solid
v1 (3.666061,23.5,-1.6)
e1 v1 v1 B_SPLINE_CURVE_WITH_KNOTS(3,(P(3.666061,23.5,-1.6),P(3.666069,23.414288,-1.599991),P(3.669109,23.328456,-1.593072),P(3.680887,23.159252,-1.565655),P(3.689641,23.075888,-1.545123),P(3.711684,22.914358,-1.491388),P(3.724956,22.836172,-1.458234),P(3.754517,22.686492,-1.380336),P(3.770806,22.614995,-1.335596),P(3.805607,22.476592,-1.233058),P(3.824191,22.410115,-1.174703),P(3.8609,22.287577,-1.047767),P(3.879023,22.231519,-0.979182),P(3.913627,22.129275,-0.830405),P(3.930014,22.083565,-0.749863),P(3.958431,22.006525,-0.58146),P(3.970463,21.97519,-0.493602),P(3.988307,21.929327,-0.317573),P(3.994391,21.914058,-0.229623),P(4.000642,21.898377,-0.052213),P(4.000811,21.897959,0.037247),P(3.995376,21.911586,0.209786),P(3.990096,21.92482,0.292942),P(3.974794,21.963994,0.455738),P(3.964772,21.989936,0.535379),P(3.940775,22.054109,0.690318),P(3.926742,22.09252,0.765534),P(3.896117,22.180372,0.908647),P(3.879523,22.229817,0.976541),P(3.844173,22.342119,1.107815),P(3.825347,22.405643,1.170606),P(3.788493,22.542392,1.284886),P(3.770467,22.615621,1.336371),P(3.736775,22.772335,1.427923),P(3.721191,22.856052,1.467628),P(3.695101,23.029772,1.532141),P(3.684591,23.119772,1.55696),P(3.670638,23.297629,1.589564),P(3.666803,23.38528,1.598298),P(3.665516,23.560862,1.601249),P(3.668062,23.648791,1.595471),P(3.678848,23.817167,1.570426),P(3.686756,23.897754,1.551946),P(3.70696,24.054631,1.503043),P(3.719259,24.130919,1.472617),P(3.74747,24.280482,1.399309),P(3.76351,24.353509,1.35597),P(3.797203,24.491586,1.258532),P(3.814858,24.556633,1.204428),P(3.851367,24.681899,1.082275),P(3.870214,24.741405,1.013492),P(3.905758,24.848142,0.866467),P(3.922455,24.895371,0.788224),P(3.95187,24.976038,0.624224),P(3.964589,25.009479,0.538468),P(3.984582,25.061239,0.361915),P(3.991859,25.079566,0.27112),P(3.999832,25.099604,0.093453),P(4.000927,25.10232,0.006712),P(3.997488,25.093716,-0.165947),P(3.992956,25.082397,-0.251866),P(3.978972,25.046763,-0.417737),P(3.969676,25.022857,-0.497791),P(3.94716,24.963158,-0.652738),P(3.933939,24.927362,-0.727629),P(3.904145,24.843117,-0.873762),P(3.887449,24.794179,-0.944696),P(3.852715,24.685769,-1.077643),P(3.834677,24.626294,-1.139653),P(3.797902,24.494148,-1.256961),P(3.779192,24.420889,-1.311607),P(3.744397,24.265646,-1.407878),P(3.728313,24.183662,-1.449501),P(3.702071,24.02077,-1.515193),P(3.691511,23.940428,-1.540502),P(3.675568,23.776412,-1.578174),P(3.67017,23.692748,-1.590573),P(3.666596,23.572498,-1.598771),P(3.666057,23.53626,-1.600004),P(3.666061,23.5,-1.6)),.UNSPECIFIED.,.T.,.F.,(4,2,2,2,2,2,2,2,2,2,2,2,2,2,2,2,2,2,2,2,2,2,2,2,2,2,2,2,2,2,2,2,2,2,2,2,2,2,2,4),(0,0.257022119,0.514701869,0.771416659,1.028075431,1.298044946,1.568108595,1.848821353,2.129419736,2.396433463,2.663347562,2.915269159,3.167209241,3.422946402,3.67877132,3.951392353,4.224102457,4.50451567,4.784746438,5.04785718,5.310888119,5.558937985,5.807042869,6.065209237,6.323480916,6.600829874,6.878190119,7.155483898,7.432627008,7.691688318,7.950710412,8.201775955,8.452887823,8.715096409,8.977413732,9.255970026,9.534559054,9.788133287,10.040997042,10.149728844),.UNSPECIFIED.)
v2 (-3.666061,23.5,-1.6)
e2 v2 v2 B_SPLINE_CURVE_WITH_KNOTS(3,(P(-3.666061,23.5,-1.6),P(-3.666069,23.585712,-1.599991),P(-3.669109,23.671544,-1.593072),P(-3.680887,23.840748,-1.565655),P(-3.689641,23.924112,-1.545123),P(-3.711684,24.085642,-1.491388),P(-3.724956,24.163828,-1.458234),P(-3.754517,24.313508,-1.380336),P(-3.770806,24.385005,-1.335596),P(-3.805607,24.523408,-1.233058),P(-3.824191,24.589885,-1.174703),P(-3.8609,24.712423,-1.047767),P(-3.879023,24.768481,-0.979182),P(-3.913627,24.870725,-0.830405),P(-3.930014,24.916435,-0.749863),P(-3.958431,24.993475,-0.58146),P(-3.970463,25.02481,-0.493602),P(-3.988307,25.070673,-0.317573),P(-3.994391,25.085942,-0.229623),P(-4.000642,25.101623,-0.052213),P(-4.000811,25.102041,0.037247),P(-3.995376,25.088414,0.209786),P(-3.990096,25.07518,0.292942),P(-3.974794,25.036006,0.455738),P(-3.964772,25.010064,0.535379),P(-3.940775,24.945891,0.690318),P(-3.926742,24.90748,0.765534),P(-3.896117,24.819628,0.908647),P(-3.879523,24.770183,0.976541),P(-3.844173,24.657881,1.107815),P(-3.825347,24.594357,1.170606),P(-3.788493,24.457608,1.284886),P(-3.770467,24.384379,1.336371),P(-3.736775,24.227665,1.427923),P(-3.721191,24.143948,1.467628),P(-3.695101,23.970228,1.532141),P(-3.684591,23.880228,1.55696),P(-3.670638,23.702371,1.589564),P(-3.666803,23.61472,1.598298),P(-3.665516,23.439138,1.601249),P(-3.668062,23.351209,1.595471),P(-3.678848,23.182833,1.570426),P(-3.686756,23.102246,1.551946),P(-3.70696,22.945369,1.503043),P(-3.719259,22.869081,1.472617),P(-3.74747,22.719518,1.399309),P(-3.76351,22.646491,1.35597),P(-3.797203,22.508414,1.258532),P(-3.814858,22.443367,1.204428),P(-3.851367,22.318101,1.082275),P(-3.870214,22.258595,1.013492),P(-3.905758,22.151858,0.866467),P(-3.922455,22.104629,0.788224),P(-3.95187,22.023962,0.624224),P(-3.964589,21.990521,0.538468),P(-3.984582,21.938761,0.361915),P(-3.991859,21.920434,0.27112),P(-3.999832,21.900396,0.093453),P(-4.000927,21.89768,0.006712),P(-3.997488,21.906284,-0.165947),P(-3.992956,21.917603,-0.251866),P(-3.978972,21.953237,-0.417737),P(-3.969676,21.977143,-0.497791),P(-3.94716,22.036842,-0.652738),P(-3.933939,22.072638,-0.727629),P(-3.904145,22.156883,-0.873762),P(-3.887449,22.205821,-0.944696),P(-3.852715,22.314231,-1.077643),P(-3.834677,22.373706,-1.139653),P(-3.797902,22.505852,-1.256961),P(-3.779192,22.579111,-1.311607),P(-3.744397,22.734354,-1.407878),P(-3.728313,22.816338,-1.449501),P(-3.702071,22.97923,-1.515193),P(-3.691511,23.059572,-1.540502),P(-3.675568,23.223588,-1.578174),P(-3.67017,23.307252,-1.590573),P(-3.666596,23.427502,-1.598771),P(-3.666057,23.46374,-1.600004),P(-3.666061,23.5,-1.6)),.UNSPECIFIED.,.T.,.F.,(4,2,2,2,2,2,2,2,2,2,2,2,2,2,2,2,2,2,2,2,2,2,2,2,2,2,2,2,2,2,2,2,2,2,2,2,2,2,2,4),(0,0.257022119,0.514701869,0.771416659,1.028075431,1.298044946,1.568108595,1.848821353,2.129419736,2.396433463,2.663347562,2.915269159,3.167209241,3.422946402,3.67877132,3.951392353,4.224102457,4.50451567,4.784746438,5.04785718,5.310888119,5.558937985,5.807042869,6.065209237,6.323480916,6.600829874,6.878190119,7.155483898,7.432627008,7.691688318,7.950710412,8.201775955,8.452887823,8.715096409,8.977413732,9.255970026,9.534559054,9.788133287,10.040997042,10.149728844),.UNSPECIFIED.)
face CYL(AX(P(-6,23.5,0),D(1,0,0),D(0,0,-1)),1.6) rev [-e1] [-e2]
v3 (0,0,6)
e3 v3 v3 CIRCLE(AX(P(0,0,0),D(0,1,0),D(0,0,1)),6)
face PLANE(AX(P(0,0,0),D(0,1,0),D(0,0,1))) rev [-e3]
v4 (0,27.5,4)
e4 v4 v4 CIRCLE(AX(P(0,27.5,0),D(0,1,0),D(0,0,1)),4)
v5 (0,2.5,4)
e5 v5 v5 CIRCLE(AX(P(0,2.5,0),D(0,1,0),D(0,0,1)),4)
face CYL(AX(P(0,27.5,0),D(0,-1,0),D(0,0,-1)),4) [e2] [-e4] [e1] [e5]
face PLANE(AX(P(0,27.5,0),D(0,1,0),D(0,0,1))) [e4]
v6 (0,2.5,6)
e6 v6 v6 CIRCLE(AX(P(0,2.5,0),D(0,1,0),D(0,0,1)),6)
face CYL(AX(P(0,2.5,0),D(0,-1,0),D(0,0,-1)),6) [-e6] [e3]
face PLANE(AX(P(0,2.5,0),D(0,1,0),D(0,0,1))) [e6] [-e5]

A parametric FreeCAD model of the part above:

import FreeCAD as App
import Part
import Sketcher
Q = App.Units.Quantity

doc = App.newDocument("Part")
body = doc.addObject("PartDesign::Body", "Body")

# Sketch on XZ plane
sketch1 = doc.addObject("Sketcher::SketchObject", "Sketch")
body.addObject(sketch1)
sketch1.AttachmentSupport = (doc.XZ_Plane, [""])
sketch1.MapMode = "FlatFace"
sketch1.addGeometry(Part.Circle(App.Vector(0, 0, 0), App.Vector(0, 0, 1), 6), False)
sketch1.addConstraint([
    Sketcher.Constraint("Coincident", 0, 3, -1, 1),
    Sketcher.Constraint("Diameter", 0, Q("12 mm")),
])
pad1 = doc.addObject("PartDesign::Pad", "Pad")
body.addObject(pad1)
pad1.Profile = sketch1
pad1.Length = 2.5
pad1.Reversed = True

# Sketch on XZ plane
sketch2 = doc.addObject("Sketcher::SketchObject", "Sketch001")
body.addObject(sketch2)
sketch2.AttachmentSupport = (doc.XZ_Plane, [""])
sketch2.MapMode = "FlatFace"
sketch2.AttachmentOffset = App.Placement(App.Vector(0, 0, -2.5), App.Rotation())
sketch2.addGeometry(Part.Circle(App.Vector(0, 0, 0), App.Vector(0, 0, 1), 4), False)
sketch2.addConstraint([
    Sketcher.Constraint("Coincident", 0, 3, -1, 1),
    Sketcher.Constraint("Diameter", 0, Q("8 mm")),
])
pad2 = doc.addObject("PartDesign::Pad", "Pad001")
body.addObject(pad2)
pad2.Profile = sketch2
pad2.Length = 25
pad2.Reversed = True

# Sketch on YZ plane
sketch3 = doc.addObject("Sketcher::SketchObject", "Sketch002")
body.addObject(sketch3)
sketch3.AttachmentSupport = (doc.YZ_Plane, [""])
sketch3.MapMode = "FlatFace"
sketch3.addGeometry(Part.Circle(App.Vector(23.5, 0, 0), App.Vector(0, 0, 1), 1.6), False)
sketch3.addConstraint([
    Sketcher.Constraint("PointOnObject", 0, 3, -1),
    Sketcher.Constraint("Diameter", 0, Q("3.2 mm")),
    Sketcher.Constraint("DistanceX", -1, 1, 0, 3, Q("23.5 mm")),
])
pocket1 = doc.addObject("PartDesign::Pocket", "Pocket")
body.addObject(pocket1)
pocket1.Profile = sketch3
pocket1.Type = "ThroughAll"
pocket1.Midplane = True

doc.recompute()
